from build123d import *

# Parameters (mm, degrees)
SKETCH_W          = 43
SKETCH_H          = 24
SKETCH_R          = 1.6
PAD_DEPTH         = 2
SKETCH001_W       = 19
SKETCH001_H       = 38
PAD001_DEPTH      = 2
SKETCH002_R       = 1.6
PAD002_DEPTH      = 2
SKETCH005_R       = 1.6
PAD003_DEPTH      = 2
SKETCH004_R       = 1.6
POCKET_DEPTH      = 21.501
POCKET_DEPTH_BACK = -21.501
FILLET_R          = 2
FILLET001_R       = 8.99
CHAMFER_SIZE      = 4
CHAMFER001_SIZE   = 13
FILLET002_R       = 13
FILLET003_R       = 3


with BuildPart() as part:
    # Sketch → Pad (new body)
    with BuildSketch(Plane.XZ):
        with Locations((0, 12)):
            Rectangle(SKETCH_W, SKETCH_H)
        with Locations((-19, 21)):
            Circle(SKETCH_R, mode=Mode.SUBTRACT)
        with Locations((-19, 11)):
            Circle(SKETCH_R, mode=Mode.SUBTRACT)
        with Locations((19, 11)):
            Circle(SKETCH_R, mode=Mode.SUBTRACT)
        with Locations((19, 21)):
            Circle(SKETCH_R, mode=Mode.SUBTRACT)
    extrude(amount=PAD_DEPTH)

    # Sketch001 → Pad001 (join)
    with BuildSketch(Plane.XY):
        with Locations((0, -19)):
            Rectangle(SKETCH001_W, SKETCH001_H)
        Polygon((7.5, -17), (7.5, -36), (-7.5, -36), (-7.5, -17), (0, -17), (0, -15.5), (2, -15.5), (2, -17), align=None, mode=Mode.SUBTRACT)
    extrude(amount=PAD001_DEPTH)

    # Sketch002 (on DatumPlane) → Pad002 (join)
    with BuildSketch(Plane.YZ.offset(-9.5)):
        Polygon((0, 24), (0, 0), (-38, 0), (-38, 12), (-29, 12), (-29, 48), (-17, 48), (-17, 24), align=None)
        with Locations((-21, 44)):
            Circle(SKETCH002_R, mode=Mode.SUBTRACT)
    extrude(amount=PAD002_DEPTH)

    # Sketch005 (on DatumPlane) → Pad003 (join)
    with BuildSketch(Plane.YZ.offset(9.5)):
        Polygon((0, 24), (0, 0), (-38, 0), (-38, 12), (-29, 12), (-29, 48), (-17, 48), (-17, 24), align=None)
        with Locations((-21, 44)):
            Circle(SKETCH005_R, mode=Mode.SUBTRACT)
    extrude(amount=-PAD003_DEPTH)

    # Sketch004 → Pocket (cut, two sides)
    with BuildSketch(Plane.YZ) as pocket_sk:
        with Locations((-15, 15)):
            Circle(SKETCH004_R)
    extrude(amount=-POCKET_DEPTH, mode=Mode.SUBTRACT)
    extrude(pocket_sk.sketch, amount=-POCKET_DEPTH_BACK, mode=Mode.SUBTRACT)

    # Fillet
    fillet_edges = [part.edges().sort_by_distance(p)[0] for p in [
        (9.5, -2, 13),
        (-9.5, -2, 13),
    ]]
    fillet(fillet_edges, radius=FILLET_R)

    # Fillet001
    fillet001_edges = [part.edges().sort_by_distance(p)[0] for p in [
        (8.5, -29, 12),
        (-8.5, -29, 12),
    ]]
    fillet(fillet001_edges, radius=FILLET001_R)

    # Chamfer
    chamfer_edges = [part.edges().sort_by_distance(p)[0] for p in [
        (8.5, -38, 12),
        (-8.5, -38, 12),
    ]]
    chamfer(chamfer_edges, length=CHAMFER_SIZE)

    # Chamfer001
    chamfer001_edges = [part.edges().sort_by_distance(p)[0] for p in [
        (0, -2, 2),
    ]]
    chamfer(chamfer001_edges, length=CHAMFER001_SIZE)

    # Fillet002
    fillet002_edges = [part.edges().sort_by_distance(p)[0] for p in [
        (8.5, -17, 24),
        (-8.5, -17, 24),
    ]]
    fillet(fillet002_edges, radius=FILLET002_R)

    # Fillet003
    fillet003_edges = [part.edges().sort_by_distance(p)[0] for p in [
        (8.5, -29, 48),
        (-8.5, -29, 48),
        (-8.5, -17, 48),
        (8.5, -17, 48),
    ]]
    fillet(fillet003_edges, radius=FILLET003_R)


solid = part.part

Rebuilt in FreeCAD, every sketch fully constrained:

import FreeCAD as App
import Part
import Sketcher

V = App.Vector
Q = App.Units.Quantity


def edges_at(feature, points):
    """Names of the edges that pass closest to the given points."""
    edges = feature.Shape.Edges
    near = lambda p: min(range(len(edges)), key=lambda i: edges[i].distToShape(Part.Vertex(*p))[0])
    return sorted({f"Edge{near(p) + 1}" for p in points})

doc = App.newDocument("Part")
params = doc.addObject("Spreadsheet::Sheet", "Params")
for row, (alias, value) in enumerate([
    ("sketch1_diameter", "3.2 mm"),
    ("sketch1_width", "43 mm"),
    ("sketch1_height", "24 mm"),
    ("pad1_length", "2 mm"),
    ("sketch2_width", "19 mm"),
    ("sketch2_width2", "15 mm"),
    ("sketch2_width3", "2 mm"),
    ("sketch2_height", "38 mm"),
    ("sketch2_height2", "1.5 mm"),
    ("pad2_length", "2 mm"),
    ("sketch3_diameter", "3.2 mm"),
    ("sketch3_width", "17 mm"),
    ("sketch3_width2", "12 mm"),
    ("sketch3_width3", "9 mm"),
    ("sketch3_height", "24 mm"),
    ("pad3_length", "2 mm"),
    ("sketch4_diameter", "3.2 mm"),
    ("sketch4_width", "17 mm"),
    ("sketch4_width2", "12 mm"),
    ("sketch4_width3", "9 mm"),
    ("sketch4_height", "24 mm"),
    ("pad4_length", "2 mm"),
    ("sketch5_diameter", "3.2 mm"),
    ("fillet_radius", "2 mm"),
    ("fillet2_radius", "8.99 mm"),
    ("chamfer_size", "4 mm"),
    ("chamfer2_size", "13 mm"),
    ("fillet3_radius", "13 mm"),
    ("fillet4_radius", "3 mm"),
], start=1):
    params.set(f"A{row}", alias)
    params.set(f"B{row}", "=" + value)
    params.setAlias(f"B{row}", alias)

body = doc.addObject("PartDesign::Body", "Body")

# Sketch on XZ plane
sketch1 = body.newObject("Sketcher::SketchObject", "Sketch")
sketch1.AttachmentSupport = (doc.getObject("XZ_Plane"), [""])
sketch1.MapMode = "FlatFace"
sketch1.addGeometry(Part.LineSegment(V(-21.5, 24, 0), V(-21.5, 0, 0)), False)
sketch1.addGeometry(Part.LineSegment(V(-21.5, 0, 0), V(21.5, 0, 0)), False)
sketch1.addGeometry(Part.LineSegment(V(21.5, 0, 0), V(21.5, 24, 0)), False)
sketch1.addGeometry(Part.LineSegment(V(21.5, 24, 0), V(-21.5, 24, 0)), False)
sketch1.addGeometry(Part.Circle(V(-19, 11, 0), V(0, 0, 1), 1.6), False)
sketch1.addGeometry(Part.Circle(V(19, 11, 0), V(0, 0, 1), 1.6), False)
sketch1.addGeometry(Part.Circle(V(-19, 21, 0), V(0, 0, 1), 1.6), False)
sketch1.addGeometry(Part.Circle(V(19, 21, 0), V(0, 0, 1), 1.6), False)
sketch1.addConstraint(Sketcher.Constraint("Coincident", 0, 2, 1, 1))
sketch1.addConstraint(Sketcher.Constraint("Coincident", 1, 2, 2, 1))
sketch1.addConstraint(Sketcher.Constraint("Coincident", 2, 2, 3, 1))
sketch1.addConstraint(Sketcher.Constraint("Coincident", 3, 2, 0, 1))
sketch1.addConstraint(Sketcher.Constraint("Vertical", 0))
sketch1.addConstraint(Sketcher.Constraint("Horizontal", 1))
sketch1.addConstraint(Sketcher.Constraint("Vertical", 2))
sketch1.addConstraint(Sketcher.Constraint("Horizontal", 3))
sketch1.addConstraint(Sketcher.Constraint("Equal", 4, 5))
sketch1.addConstraint(Sketcher.Constraint("Equal", 5, 6))
sketch1.addConstraint(Sketcher.Constraint("Equal", 6, 7))
sketch1.addConstraint(Sketcher.Constraint("Symmetric", 0, 2, 1, 2, -1, 1))
sketch1.addConstraint(Sketcher.Constraint("Symmetric", 4, 3, 5, 3, -2))
sketch1.addConstraint(Sketcher.Constraint("Symmetric", 6, 3, 7, 3, -2))
sketch1.addConstraint(Sketcher.Constraint("Vertical", 4, 3, 6, 3))
sketch1.addConstraint(Sketcher.Constraint("Diameter", 4, Q("3.2 mm")))
sketch1.addConstraint(Sketcher.Constraint("DistanceX", 1, 1, 1, 2, Q("43 mm")))
sketch1.addConstraint(Sketcher.Constraint("DistanceY", 0, 2, 0, 1, Q("24 mm")))
sketch1.addConstraint(Sketcher.Constraint("DistanceX", 4, 3, -1, 1, Q("19 mm")))
sketch1.addConstraint(Sketcher.Constraint("DistanceY", -1, 1, 4, 3, Q("11 mm")))
sketch1.addConstraint(Sketcher.Constraint("DistanceY", -1, 1, 6, 3, Q("21 mm")))
sketch1.setExpression("Constraints[15]", "Params.sketch1_diameter")
sketch1.setExpression("Constraints[16]", "Params.sketch1_width")
sketch1.setExpression("Constraints[17]", "Params.sketch1_height")
pad1 = body.newObject("PartDesign::Pad", "Pad")
pad1.Profile = sketch1
pad1.setExpression("Length", "Params.pad1_length")

# Sketch on XY plane
sketch2 = body.newObject("Sketcher::SketchObject", "Sketch001")
sketch2.AttachmentSupport = (doc.getObject("XY_Plane"), [""])
sketch2.MapMode = "FlatFace"
sketch2.addGeometry(Part.LineSegment(V(-9.5, 0, 0), V(-9.5, -38, 0)), False)
sketch2.addGeometry(Part.LineSegment(V(-9.5, -38, 0), V(9.5, -38, 0)), False)
sketch2.addGeometry(Part.LineSegment(V(9.5, -38, 0), V(9.5, 0, 0)), False)
sketch2.addGeometry(Part.LineSegment(V(9.5, 0, 0), V(-9.5, 0, 0)), False)
sketch2.addGeometry(Part.LineSegment(V(2, -17, 0), V(7.5, -17, 0)), False)
sketch2.addGeometry(Part.LineSegment(V(7.5, -17, 0), V(7.5, -36, 0)), False)
sketch2.addGeometry(Part.LineSegment(V(7.5, -36, 0), V(-7.5, -36, 0)), False)
sketch2.addGeometry(Part.LineSegment(V(-7.5, -36, 0), V(-7.5, -17, 0)), False)
sketch2.addGeometry(Part.LineSegment(V(-7.5, -17, 0), V(0, -17, 0)), False)
sketch2.addGeometry(Part.LineSegment(V(0, -17, 0), V(0, -15.5, 0)), False)
sketch2.addGeometry(Part.LineSegment(V(0, -15.5, 0), V(2, -15.5, 0)), False)
sketch2.addGeometry(Part.LineSegment(V(2, -15.5, 0), V(2, -17, 0)), False)
sketch2.addConstraint(Sketcher.Constraint("Coincident", 0, 2, 1, 1))
sketch2.addConstraint(Sketcher.Constraint("Coincident", 1, 2, 2, 1))
sketch2.addConstraint(Sketcher.Constraint("Coincident", 2, 2, 3, 1))
sketch2.addConstraint(Sketcher.Constraint("Coincident", 3, 2, 0, 1))
sketch2.addConstraint(Sketcher.Constraint("Coincident", 4, 2, 5, 1))
sketch2.addConstraint(Sketcher.Constraint("Coincident", 5, 2, 6, 1))
sketch2.addConstraint(Sketcher.Constraint("Coincident", 6, 2, 7, 1))
sketch2.addConstraint(Sketcher.Constraint("Coincident", 7, 2, 8, 1))
sketch2.addConstraint(Sketcher.Constraint("Coincident", 8, 2, 9, 1))
sketch2.addConstraint(Sketcher.Constraint("Coincident", 9, 2, 10, 1))
sketch2.addConstraint(Sketcher.Constraint("Coincident", 10, 2, 11, 1))
sketch2.addConstraint(Sketcher.Constraint("Coincident", 11, 2, 4, 1))
sketch2.addConstraint(Sketcher.Constraint("Vertical", 0))
sketch2.addConstraint(Sketcher.Constraint("Horizontal", 1))
sketch2.addConstraint(Sketcher.Constraint("Vertical", 2))
sketch2.addConstraint(Sketcher.Constraint("Horizontal", 3))
sketch2.addConstraint(Sketcher.Constraint("Horizontal", 4))
sketch2.addConstraint(Sketcher.Constraint("Vertical", 5))
sketch2.addConstraint(Sketcher.Constraint("Horizontal", 6))
sketch2.addConstraint(Sketcher.Constraint("Vertical", 7))
sketch2.addConstraint(Sketcher.Constraint("Horizontal", 8))
sketch2.addConstraint(Sketcher.Constraint("Vertical", 9))
sketch2.addConstraint(Sketcher.Constraint("Horizontal", 10))
sketch2.addConstraint(Sketcher.Constraint("Vertical", 11))
sketch2.addConstraint(Sketcher.Constraint("Symmetric", 2, 2, 3, 2, -1, 1))
sketch2.addConstraint(Sketcher.Constraint("Symmetric", 4, 2, 7, 2, -2))
sketch2.addConstraint(Sketcher.Constraint("PointOnObject", 8, 2, -2))
sketch2.addConstraint(Sketcher.Constraint("Equal", 3, 5))
sketch2.addConstraint(Sketcher.Constraint("DistanceX", 1, 1, 1, 2, Q("19 mm")))
sketch2.addConstraint(Sketcher.Constraint("DistanceX", 6, 2, 6, 1, Q("15 mm")))
sketch2.addConstraint(Sketcher.Constraint("DistanceX", 10, 1, 10, 2, Q("2 mm")))
sketch2.addConstraint(Sketcher.Constraint("DistanceY", 0, 2, 0, 1, Q("38 mm")))
sketch2.addConstraint(Sketcher.Constraint("DistanceY", 9, 1, 9, 2, Q("1.5 mm")))
sketch2.addConstraint(Sketcher.Constraint("DistanceY", 4, 2, -1, 1, Q("17 mm")))
sketch2.setExpression("Constraints[28]", "Params.sketch2_width")
sketch2.setExpression("Constraints[29]", "Params.sketch2_width2")
sketch2.setExpression("Constraints[30]", "Params.sketch2_width3")
sketch2.setExpression("Constraints[31]", "Params.sketch2_height")
sketch2.setExpression("Constraints[32]", "Params.sketch2_height2")
pad2 = body.newObject("PartDesign::Pad", "Pad001")
pad2.Profile = sketch2
pad2.setExpression("Length", "Params.pad2_length")

# Sketch on YZ plane
sketch3 = body.newObject("Sketcher::SketchObject", "Sketch002")
sketch3.AttachmentSupport = (doc.getObject("YZ_Plane"), [""])
sketch3.MapMode = "FlatFace"
sketch3.AttachmentOffset = App.Placement(V(0, 0, -9.5), App.Rotation())
sketch3.addGeometry(Part.LineSegment(V(0, 0, 0), V(0, 24, 0)), False)
sketch3.addGeometry(Part.LineSegment(V(0, 24, 0), V(-17, 24, 0)), False)
sketch3.addGeometry(Part.LineSegment(V(-17, 24, 0), V(-17, 48, 0)), False)
sketch3.addGeometry(Part.LineSegment(V(-17, 48, 0), V(-29, 48, 0)), False)
sketch3.addGeometry(Part.LineSegment(V(-29, 48, 0), V(-29, 12, 0)), False)
sketch3.addGeometry(Part.LineSegment(V(-29, 12, 0), V(-38, 12, 0)), False)
sketch3.addGeometry(Part.LineSegment(V(-38, 12, 0), V(-38, 0, 0)), False)
sketch3.addGeometry(Part.LineSegment(V(-38, 0, 0), V(0, 0, 0)), False)
sketch3.addGeometry(Part.Circle(V(-21, 44, 0), V(0, 0, 1), 1.6), False)
sketch3.addConstraint(Sketcher.Constraint("Coincident", 0, 2, 1, 1))
sketch3.addConstraint(Sketcher.Constraint("Coincident", 1, 2, 2, 1))
sketch3.addConstraint(Sketcher.Constraint("Coincident", 2, 2, 3, 1))
sketch3.addConstraint(Sketcher.Constraint("Coincident", 3, 2, 4, 1))
sketch3.addConstraint(Sketcher.Constraint("Coincident", 4, 2, 5, 1))
sketch3.addConstraint(Sketcher.Constraint("Coincident", 5, 2, 6, 1))
sketch3.addConstraint(Sketcher.Constraint("Coincident", 6, 2, 7, 1))
sketch3.addConstraint(Sketcher.Constraint("Coincident", 7, 2, 0, 1))
sketch3.addConstraint(Sketcher.Constraint("Vertical", 0))
sketch3.addConstraint(Sketcher.Constraint("Horizontal", 1))
sketch3.addConstraint(Sketcher.Constraint("Vertical", 2))
sketch3.addConstraint(Sketcher.Constraint("Horizontal", 3))
sketch3.addConstraint(Sketcher.Constraint("Vertical", 4))
sketch3.addConstraint(Sketcher.Constraint("Horizontal", 5))
sketch3.addConstraint(Sketcher.Constraint("Vertical", 6))
sketch3.addConstraint(Sketcher.Constraint("Horizontal", 7))
sketch3.addConstraint(Sketcher.Constraint("Coincident", 7, 2, -1, 1))
sketch3.addConstraint(Sketcher.Constraint("Equal", 0, 2))
sketch3.addConstraint(Sketcher.Constraint("Equal", 3, 6))
sketch3.addConstraint(Sketcher.Constraint("Diameter", 8, Q("3.2 mm")))
sketch3.addConstraint(Sketcher.Constraint("DistanceX", 1, 2, 1, 1, Q("17 mm")))
sketch3.addConstraint(Sketcher.Constraint("DistanceX", 3, 2, 3, 1, Q("12 mm")))
sketch3.addConstraint(Sketcher.Constraint("DistanceX", 5, 2, 5, 1, Q("9 mm")))
sketch3.addConstraint(Sketcher.Constraint("DistanceY", 0, 1, 0, 2, Q("24 mm")))
sketch3.addConstraint(Sketcher.Constraint("DistanceX", 8, 3, -1, 1, Q("21 mm")))
sketch3.addConstraint(Sketcher.Constraint("DistanceY", -1, 1, 8, 3, Q("44 mm")))
sketch3.setExpression("Constraints[19]", "Params.sketch3_diameter")
sketch3.setExpression("Constraints[20]", "Params.sketch3_width")
sketch3.setExpression("Constraints[21]", "Params.sketch3_width2")
sketch3.setExpression("Constraints[22]", "Params.sketch3_width3")
sketch3.setExpression("Constraints[23]", "Params.sketch3_height")
pad3 = body.newObject("PartDesign::Pad", "Pad002")
pad3.Profile = sketch3
pad3.setExpression("Length", "Params.pad3_length")

# Sketch on YZ plane
sketch4 = body.newObject("Sketcher::SketchObject", "Sketch003")
sketch4.AttachmentSupport = (doc.getObject("YZ_Plane"), [""])
sketch4.MapMode = "FlatFace"
sketch4.AttachmentOffset = App.Placement(V(0, 0, 9.5), App.Rotation())
sketch4.addGeometry(Part.LineSegment(V(0, 0, 0), V(0, 24, 0)), False)
sketch4.addGeometry(Part.LineSegment(V(0, 24, 0), V(-17, 24, 0)), False)
sketch4.addGeometry(Part.LineSegment(V(-17, 24, 0), V(-17, 48, 0)), False)
sketch4.addGeometry(Part.LineSegment(V(-17, 48, 0), V(-29, 48, 0)), False)
sketch4.addGeometry(Part.LineSegment(V(-29, 48, 0), V(-29, 12, 0)), False)
sketch4.addGeometry(Part.LineSegment(V(-29, 12, 0), V(-38, 12, 0)), False)
sketch4.addGeometry(Part.LineSegment(V(-38, 12, 0), V(-38, 0, 0)), False)
sketch4.addGeometry(Part.LineSegment(V(-38, 0, 0), V(0, 0, 0)), False)
sketch4.addGeometry(Part.Circle(V(-21, 44, 0), V(0, 0, 1), 1.6), False)
sketch4.addConstraint(Sketcher.Constraint("Coincident", 0, 2, 1, 1))
sketch4.addConstraint(Sketcher.Constraint("Coincident", 1, 2, 2, 1))
sketch4.addConstraint(Sketcher.Constraint("Coincident", 2, 2, 3, 1))
sketch4.addConstraint(Sketcher.Constraint("Coincident", 3, 2, 4, 1))
sketch4.addConstraint(Sketcher.Constraint("Coincident", 4, 2, 5, 1))
sketch4.addConstraint(Sketcher.Constraint("Coincident", 5, 2, 6, 1))
sketch4.addConstraint(Sketcher.Constraint("Coincident", 6, 2, 7, 1))
sketch4.addConstraint(Sketcher.Constraint("Coincident", 7, 2, 0, 1))
sketch4.addConstraint(Sketcher.Constraint("Vertical", 0))
sketch4.addConstraint(Sketcher.Constraint("Horizontal", 1))
sketch4.addConstraint(Sketcher.Constraint("Vertical", 2))
sketch4.addConstraint(Sketcher.Constraint("Horizontal", 3))
sketch4.addConstraint(Sketcher.Constraint("Vertical", 4))
sketch4.addConstraint(Sketcher.Constraint("Horizontal", 5))
sketch4.addConstraint(Sketcher.Constraint("Vertical", 6))
sketch4.addConstraint(Sketcher.Constraint("Horizontal", 7))
sketch4.addConstraint(Sketcher.Constraint("Coincident", 7, 2, -1, 1))
sketch4.addConstraint(Sketcher.Constraint("Equal", 0, 2))
sketch4.addConstraint(Sketcher.Constraint("Equal", 3, 6))
sketch4.addConstraint(Sketcher.Constraint("Diameter", 8, Q("3.2 mm")))
sketch4.addConstraint(Sketcher.Constraint("DistanceX", 1, 2, 1, 1, Q("17 mm")))
sketch4.addConstraint(Sketcher.Constraint("DistanceX", 3, 2, 3, 1, Q("12 mm")))
sketch4.addConstraint(Sketcher.Constraint("DistanceX", 5, 2, 5, 1, Q("9 mm")))
sketch4.addConstraint(Sketcher.Constraint("DistanceY", 0, 1, 0, 2, Q("24 mm")))
sketch4.addConstraint(Sketcher.Constraint("DistanceX", 8, 3, -1, 1, Q("21 mm")))
sketch4.addConstraint(Sketcher.Constraint("DistanceY", -1, 1, 8, 3, Q("44 mm")))
sketch4.setExpression("Constraints[19]", "Params.sketch4_diameter")
sketch4.setExpression("Constraints[20]", "Params.sketch4_width")
sketch4.setExpression("Constraints[21]", "Params.sketch4_width2")
sketch4.setExpression("Constraints[22]", "Params.sketch4_width3")
sketch4.setExpression("Constraints[23]", "Params.sketch4_height")
pad4 = body.newObject("PartDesign::Pad", "Pad003")
pad4.Profile = sketch4
pad4.setExpression("Length", "Params.pad4_length")
pad4.Reversed = True

# Sketch on YZ plane
sketch5 = body.newObject("Sketcher::SketchObject", "Sketch004")
sketch5.AttachmentSupport = (doc.getObject("YZ_Plane"), [""])
sketch5.MapMode = "FlatFace"
sketch5.addGeometry(Part.Circle(V(-15, 15, 0), V(0, 0, 1), 1.6), False)
sketch5.addConstraint(Sketcher.Constraint("Diameter", 0, Q("3.2 mm")))
sketch5.addConstraint(Sketcher.Constraint("DistanceX", 0, 3, -1, 1, Q("15 mm")))
sketch5.addConstraint(Sketcher.Constraint("DistanceY", -1, 1, 0, 3, Q("15 mm")))
sketch5.setExpression("Constraints[0]", "Params.sketch5_diameter")
pocket1 = body.newObject("PartDesign::Pocket", "Pocket")
pocket1.Profile = sketch5
pocket1.Type = "ThroughAll"
pocket1.Midplane = True
doc.recompute()

fillet = body.newObject("PartDesign::Fillet", "Fillet")
fillet.Base = (pocket1, edges_at(pocket1, [(9.5, -2, 12), (-9.5, -2, 12)]))
fillet.setExpression("Radius", "Params.fillet_radius")
doc.recompute()

fillet2 = body.newObject("PartDesign::Fillet", "Fillet001")
fillet2.Base = (fillet, edges_at(fillet, [(8.5, -29, 12), (-8.5, -29, 12)]))
fillet2.setExpression("Radius", "Params.fillet2_radius")
doc.recompute()

chamfer = body.newObject("PartDesign::Chamfer", "Chamfer")
chamfer.Base = (fillet2, edges_at(fillet2, [(8.5, -38, 12), (-8.5, -38, 12)]))
chamfer.setExpression("Size", "Params.chamfer_size")
doc.recompute()

chamfer2 = body.newObject("PartDesign::Chamfer", "Chamfer001")
chamfer2.Base = (chamfer, edges_at(chamfer, [(0, -2, 2)]))
chamfer2.setExpression("Size", "Params.chamfer2_size")
doc.recompute()

fillet3 = body.newObject("PartDesign::Fillet", "Fillet002")
fillet3.Base = (chamfer2, edges_at(chamfer2, [(8.5, -17, 24), (-8.5, -17, 24)]))
fillet3.setExpression("Radius", "Params.fillet3_radius")
doc.recompute()

fillet4 = body.newObject("PartDesign::Fillet", "Fillet003")
fillet4.Base = (fillet3, edges_at(fillet3, [
    (8.5, -29, 48),
    (-8.5, -29, 48),
    (-8.5, -17, 48),
    (8.5, -17, 48),
]))
fillet4.setExpression("Radius", "Params.fillet4_radius")

doc.recompute()
